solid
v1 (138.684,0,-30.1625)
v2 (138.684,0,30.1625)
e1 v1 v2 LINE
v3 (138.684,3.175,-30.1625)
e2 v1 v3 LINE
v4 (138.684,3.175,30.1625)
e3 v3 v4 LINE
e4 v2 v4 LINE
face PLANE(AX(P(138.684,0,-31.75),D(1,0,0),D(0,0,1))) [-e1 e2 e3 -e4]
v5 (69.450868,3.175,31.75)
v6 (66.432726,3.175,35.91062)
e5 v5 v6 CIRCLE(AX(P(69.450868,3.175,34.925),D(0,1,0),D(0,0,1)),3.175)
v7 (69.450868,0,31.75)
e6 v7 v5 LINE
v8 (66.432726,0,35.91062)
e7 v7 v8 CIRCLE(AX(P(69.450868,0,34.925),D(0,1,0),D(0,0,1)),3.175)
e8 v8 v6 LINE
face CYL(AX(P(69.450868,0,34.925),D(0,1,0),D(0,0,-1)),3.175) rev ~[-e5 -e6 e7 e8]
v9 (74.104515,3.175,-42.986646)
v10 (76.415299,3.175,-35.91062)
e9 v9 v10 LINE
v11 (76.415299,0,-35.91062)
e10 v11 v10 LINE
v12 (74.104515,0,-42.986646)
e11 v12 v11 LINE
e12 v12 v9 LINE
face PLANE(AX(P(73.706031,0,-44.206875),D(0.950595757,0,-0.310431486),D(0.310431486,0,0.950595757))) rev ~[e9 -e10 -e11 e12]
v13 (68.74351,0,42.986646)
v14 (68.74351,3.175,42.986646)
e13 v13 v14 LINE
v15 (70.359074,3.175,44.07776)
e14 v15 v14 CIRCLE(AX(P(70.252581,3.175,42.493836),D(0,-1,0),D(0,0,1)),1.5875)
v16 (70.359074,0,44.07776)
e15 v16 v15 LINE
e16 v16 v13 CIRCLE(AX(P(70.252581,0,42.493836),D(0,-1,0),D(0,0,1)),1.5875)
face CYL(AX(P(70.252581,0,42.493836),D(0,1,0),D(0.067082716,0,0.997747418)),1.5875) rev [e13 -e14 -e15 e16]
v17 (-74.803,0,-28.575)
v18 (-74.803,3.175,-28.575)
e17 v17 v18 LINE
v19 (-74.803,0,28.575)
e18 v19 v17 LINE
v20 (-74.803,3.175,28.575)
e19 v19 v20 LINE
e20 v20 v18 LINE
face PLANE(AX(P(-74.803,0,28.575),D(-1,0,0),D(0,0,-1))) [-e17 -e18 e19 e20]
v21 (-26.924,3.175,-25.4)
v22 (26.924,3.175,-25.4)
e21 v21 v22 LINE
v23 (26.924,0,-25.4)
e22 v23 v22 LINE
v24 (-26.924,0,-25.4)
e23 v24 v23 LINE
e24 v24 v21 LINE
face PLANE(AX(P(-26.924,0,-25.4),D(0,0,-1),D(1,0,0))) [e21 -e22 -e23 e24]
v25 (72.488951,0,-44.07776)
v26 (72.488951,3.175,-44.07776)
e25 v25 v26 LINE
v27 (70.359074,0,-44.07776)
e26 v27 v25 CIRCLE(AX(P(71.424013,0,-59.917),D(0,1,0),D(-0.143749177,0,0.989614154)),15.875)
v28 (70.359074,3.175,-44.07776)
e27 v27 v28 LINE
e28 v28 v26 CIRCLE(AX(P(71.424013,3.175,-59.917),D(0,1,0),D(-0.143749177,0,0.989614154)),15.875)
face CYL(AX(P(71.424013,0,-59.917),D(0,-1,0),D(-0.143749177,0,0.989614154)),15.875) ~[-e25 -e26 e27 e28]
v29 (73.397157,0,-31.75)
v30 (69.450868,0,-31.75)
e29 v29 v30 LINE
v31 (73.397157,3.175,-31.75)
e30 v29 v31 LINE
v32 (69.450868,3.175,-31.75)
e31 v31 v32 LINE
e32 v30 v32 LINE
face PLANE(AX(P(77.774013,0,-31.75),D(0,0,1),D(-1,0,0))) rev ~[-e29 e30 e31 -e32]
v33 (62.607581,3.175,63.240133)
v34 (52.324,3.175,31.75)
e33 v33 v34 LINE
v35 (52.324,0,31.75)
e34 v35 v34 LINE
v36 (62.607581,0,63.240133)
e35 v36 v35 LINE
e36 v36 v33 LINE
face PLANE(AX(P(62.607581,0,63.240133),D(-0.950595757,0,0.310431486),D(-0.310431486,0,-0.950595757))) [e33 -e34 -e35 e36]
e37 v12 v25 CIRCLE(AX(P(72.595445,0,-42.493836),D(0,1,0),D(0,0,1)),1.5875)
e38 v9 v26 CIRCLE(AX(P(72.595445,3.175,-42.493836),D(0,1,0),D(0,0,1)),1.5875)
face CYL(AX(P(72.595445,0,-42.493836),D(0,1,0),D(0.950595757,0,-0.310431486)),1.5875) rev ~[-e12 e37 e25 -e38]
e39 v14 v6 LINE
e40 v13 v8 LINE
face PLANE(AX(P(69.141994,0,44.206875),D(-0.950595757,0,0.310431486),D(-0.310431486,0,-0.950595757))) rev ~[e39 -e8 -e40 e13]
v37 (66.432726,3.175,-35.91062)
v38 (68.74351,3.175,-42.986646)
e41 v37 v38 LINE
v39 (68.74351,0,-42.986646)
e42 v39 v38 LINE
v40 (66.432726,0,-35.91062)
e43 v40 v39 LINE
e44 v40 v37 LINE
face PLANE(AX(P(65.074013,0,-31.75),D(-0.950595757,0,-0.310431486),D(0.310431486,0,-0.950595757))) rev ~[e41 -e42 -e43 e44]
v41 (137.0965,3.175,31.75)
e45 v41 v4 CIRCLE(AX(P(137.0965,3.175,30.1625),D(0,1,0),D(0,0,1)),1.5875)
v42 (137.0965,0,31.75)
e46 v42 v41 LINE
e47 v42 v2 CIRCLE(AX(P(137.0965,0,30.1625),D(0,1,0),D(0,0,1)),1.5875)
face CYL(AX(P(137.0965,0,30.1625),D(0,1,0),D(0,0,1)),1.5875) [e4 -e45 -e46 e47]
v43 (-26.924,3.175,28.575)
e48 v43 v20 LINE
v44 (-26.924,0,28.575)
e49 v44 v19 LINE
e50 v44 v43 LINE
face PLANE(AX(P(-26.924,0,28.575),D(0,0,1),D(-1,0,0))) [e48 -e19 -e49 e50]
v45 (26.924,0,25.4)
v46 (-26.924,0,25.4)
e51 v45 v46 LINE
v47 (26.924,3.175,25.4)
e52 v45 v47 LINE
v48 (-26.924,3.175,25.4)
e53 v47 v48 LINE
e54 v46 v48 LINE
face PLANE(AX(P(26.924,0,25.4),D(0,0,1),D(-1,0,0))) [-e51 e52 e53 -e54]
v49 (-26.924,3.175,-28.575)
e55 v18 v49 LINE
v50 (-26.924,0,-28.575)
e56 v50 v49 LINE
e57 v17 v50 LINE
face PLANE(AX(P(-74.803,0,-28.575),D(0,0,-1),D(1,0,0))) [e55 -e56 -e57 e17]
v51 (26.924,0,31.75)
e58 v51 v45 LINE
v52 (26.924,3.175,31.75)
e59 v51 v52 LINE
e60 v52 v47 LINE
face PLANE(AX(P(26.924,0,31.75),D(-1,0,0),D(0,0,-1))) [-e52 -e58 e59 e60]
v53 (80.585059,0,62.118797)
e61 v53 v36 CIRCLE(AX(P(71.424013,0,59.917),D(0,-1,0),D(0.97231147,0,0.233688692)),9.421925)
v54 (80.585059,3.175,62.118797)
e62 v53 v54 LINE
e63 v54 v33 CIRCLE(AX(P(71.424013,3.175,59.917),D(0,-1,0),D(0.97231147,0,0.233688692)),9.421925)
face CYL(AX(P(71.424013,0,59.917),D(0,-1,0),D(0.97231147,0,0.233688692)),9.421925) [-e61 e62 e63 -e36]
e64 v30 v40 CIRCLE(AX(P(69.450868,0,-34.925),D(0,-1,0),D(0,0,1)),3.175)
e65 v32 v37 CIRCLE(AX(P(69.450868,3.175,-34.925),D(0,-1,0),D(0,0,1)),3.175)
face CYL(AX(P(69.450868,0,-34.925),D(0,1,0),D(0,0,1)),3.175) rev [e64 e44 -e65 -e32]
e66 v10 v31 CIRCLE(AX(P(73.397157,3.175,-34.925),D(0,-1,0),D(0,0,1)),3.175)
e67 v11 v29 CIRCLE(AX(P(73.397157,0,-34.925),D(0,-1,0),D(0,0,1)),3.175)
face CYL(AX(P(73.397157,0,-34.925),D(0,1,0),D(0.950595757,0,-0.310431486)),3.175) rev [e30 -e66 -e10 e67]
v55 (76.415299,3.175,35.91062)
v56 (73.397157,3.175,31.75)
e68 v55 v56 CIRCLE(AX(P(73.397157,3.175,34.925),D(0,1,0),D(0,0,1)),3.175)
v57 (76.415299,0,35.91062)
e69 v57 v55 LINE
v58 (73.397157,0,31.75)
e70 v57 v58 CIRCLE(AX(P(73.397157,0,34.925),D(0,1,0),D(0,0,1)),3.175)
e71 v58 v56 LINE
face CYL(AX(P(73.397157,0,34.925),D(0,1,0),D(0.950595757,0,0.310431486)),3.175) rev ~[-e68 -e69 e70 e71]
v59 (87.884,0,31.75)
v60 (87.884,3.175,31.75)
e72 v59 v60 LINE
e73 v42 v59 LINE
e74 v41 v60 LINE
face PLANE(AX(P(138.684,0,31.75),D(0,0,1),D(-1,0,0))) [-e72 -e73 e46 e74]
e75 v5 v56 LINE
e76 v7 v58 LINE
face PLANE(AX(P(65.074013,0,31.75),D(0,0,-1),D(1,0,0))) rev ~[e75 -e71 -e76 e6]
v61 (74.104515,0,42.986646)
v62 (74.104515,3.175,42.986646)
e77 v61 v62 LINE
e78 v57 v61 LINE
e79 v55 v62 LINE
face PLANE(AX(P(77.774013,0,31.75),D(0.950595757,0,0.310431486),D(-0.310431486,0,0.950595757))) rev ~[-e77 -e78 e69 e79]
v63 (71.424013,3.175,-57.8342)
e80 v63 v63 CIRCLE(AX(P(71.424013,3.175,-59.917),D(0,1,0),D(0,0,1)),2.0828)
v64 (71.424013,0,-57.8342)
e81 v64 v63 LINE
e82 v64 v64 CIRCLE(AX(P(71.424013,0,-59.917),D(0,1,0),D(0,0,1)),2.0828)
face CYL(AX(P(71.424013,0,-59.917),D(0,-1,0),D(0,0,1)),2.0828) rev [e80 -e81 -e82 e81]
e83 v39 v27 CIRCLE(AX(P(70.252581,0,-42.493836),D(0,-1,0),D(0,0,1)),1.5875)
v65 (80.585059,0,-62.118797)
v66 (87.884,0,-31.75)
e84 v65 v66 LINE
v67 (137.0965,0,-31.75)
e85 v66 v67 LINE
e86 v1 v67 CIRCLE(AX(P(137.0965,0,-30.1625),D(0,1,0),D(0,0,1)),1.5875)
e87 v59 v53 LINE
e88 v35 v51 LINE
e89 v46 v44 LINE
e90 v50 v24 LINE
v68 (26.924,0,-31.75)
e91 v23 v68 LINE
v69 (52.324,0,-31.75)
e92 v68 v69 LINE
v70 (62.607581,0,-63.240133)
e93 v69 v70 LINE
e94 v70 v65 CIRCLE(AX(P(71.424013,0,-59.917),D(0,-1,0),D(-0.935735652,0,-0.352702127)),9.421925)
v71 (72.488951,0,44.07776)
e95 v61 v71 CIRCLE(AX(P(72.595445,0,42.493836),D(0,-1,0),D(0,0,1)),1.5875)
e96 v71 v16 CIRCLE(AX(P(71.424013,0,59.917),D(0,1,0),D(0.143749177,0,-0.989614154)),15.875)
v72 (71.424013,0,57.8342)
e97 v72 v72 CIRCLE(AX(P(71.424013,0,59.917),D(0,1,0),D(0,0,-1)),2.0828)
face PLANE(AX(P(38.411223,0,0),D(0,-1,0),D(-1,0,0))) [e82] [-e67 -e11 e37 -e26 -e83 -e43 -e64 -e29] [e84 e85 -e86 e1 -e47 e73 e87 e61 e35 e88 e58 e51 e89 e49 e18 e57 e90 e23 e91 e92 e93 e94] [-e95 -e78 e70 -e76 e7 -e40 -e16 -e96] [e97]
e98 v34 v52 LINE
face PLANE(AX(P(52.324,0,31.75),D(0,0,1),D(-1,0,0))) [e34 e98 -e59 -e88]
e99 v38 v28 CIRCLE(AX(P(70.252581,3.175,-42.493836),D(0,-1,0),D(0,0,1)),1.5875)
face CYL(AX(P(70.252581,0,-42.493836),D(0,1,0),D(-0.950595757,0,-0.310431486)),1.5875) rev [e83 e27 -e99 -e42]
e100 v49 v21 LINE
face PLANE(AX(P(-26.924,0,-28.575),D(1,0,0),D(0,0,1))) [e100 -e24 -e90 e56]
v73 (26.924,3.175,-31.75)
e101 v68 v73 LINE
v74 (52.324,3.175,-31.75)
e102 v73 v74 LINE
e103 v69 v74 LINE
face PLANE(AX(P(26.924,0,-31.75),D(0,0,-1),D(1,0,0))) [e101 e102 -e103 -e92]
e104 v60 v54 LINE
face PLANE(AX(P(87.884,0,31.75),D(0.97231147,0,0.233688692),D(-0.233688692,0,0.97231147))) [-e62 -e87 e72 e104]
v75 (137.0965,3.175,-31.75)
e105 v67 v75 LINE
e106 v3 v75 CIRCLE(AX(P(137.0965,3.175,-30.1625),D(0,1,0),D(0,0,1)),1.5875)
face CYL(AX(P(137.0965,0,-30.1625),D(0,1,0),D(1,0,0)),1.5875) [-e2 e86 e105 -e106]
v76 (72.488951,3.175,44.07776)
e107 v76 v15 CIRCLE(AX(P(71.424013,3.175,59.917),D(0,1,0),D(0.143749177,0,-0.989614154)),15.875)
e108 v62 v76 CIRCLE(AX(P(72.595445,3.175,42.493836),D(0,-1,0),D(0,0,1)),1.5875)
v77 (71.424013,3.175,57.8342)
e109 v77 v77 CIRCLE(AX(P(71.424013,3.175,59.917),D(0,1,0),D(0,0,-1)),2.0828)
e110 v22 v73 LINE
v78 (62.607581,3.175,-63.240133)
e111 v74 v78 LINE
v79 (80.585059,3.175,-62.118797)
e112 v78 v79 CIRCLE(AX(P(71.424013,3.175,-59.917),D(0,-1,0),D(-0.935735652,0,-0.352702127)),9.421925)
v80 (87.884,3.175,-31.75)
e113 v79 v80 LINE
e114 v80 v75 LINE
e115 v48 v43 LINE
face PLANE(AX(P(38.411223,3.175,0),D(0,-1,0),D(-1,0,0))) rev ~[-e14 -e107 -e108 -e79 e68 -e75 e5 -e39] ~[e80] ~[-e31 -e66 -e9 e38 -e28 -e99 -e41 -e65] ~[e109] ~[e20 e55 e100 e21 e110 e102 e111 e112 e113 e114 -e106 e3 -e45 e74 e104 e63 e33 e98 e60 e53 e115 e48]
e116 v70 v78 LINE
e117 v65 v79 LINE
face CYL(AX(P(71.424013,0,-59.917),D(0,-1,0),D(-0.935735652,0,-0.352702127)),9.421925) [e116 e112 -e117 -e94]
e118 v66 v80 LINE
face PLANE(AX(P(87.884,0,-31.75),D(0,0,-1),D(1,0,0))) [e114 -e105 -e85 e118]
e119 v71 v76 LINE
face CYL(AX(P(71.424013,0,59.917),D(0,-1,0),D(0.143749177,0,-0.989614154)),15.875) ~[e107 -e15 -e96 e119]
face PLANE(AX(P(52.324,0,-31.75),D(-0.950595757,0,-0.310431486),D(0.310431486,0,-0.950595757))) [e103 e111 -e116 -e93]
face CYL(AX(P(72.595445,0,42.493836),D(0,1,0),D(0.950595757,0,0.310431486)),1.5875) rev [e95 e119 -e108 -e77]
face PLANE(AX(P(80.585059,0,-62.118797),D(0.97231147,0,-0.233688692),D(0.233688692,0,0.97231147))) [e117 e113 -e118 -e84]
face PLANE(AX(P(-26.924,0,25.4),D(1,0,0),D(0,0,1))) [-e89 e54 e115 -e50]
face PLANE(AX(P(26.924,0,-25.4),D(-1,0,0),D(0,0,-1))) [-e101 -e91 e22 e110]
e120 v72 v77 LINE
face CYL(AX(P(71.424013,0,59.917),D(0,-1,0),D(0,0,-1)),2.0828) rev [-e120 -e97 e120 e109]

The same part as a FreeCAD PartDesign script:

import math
import FreeCAD as App
import Part
import Sketcher
from FreeCAD import Vector
Q = App.Units.Quantity


def edges_at(feature, points):
    """Names of the edges that pass closest to the given points."""
    edges = feature.Shape.Edges
    near = lambda p: min(range(len(edges)), key=lambda i: edges[i].distToShape(Part.Vertex(*p))[0])
    return sorted({f"Edge{near(p) + 1}" for p in points})

doc = App.newDocument("Part")
body = doc.addObject("PartDesign::Body", "Body")

# Sketch on XZ plane
sketch1 = body.newObject("Sketcher::SketchObject", "Sketch")
sketch1.AttachmentSupport = (doc.getObject("XZ_Plane"), [""])
sketch1.MapMode = "FlatFace"
sketch1.addGeometry([
    Part.LineSegment(Vector(-26.9, 25.4, 0), Vector(26.9, 25.4, 0)),  # 0
    Part.LineSegment(Vector(26.9, 25.4, 0), Vector(26.9, 31.8, 0)),  # 1
    Part.LineSegment(Vector(26.9, 31.8, 0), Vector(52.3, 31.8, 0)),  # 2
    Part.LineSegment(Vector(52.3, 31.8, 0), Vector(62.6, 63.2, 0)),  # 3
    Part.ArcOfCircle(Part.Circle(Vector(71.4, 59.9, 0), Vector(0, 0, 1), 9.4), math.radians(14), math.radians(159)),  # 4
    Part.LineSegment(Vector(80.6, 62.1, 0), Vector(87.9, 31.8, 0)),  # 5
    Part.LineSegment(Vector(87.9, 31.8, 0), Vector(138.7, 31.8, 0)),  # 6
    Part.LineSegment(Vector(138.7, 31.8, 0), Vector(138.7, -31.8, 0)),  # 7
    Part.LineSegment(Vector(138.7, -31.8, 0), Vector(87.9, -31.8, 0)),  # 8
    Part.LineSegment(Vector(87.9, -31.8, 0), Vector(80.6, -62.1, 0)),  # 9
    Part.ArcOfCircle(Part.Circle(Vector(71.4, -59.9, 0), Vector(0, 0, 1), 9.4), math.radians(-159), math.radians(-14)),  # 10
    Part.LineSegment(Vector(62.6, -63.2, 0), Vector(52.3, -31.8, 0)),  # 11
    Part.LineSegment(Vector(52.3, -31.8, 0), Vector(26.9, -31.8, 0)),  # 12
    Part.LineSegment(Vector(26.9, -31.8, 0), Vector(26.9, -25.4, 0)),  # 13
    Part.LineSegment(Vector(26.9, -25.4, 0), Vector(-26.9, -25.4, 0)),  # 14
    Part.LineSegment(Vector(-26.9, -25.4, 0), Vector(-26.9, -28.6, 0)),  # 15
    Part.LineSegment(Vector(-26.9, -28.6, 0), Vector(-74.8, -28.6, 0)),  # 16
    Part.LineSegment(Vector(-74.8, -28.6, 0), Vector(-74.8, 28.6, 0)),  # 17
    Part.LineSegment(Vector(-74.8, 28.6, 0), Vector(-26.9, 28.6, 0)),  # 18
    Part.LineSegment(Vector(-26.9, 28.6, 0), Vector(-26.9, 25.4, 0)),  # 19
    Part.Circle(Vector(71.4, 59.9, 0), Vector(0, 0, 1), 2.1),  # 20
    Part.LineSegment(Vector(77.8, 31.8, 0), Vector(73.7, 44.2, 0)),  # 21
    Part.ArcOfCircle(Part.Circle(Vector(71.4, 59.9, 0), Vector(0, 0, 1), 15.9), math.radians(-98.26), math.radians(-81.74)),  # 22
    Part.LineSegment(Vector(69.1, 44.2, 0), Vector(65.1, 31.8, 0)),  # 23
    Part.LineSegment(Vector(65.1, 31.8, 0), Vector(77.8, 31.8, 0)),  # 24
    Part.LineSegment(Vector(77.8, -31.8, 0), Vector(65.1, -31.8, 0)),  # 25
    Part.LineSegment(Vector(65.1, -31.8, 0), Vector(69.1, -44.2, 0)),  # 26
    Part.ArcOfCircle(Part.Circle(Vector(71.4, -59.9, 0), Vector(0, 0, 1), 15.9), math.radians(81.74), math.radians(98.26)),  # 27
    Part.LineSegment(Vector(73.7, -44.2, 0), Vector(77.8, -31.8, 0)),  # 28
    Part.Circle(Vector(71.4, -59.9, 0), Vector(0, 0, 1), 2.1),  # 29
], False)
sketch1.addConstraint([
    Sketcher.Constraint("Coincident", 0, 2, 1, 1),
    Sketcher.Constraint("Coincident", 1, 2, 2, 1),
    Sketcher.Constraint("Coincident", 2, 2, 3, 1),
    Sketcher.Constraint("Coincident", 3, 2, 4, 2),
    Sketcher.Constraint("Tangent", 4, 1, 5, 1),
    Sketcher.Constraint("Coincident", 5, 2, 6, 1),
    Sketcher.Constraint("Coincident", 6, 2, 7, 1),
    Sketcher.Constraint("Coincident", 7, 2, 8, 1),
    Sketcher.Constraint("Coincident", 8, 2, 9, 1),
    Sketcher.Constraint("Tangent", 9, 2, 10, 2),
    Sketcher.Constraint("Coincident", 10, 1, 11, 1),
    Sketcher.Constraint("Coincident", 11, 2, 12, 1),
    Sketcher.Constraint("Coincident", 12, 2, 13, 1),
    Sketcher.Constraint("Coincident", 13, 2, 14, 1),
    Sketcher.Constraint("Coincident", 14, 2, 15, 1),
    Sketcher.Constraint("Coincident", 15, 2, 16, 1),
    Sketcher.Constraint("Coincident", 16, 2, 17, 1),
    Sketcher.Constraint("Coincident", 17, 2, 18, 1),
    Sketcher.Constraint("Coincident", 18, 2, 19, 1),
    Sketcher.Constraint("Coincident", 19, 2, 0, 1),
    Sketcher.Constraint("Coincident", 21, 2, 22, 2),
    Sketcher.Constraint("Coincident", 22, 1, 23, 1),
    Sketcher.Constraint("Coincident", 23, 2, 24, 1),
    Sketcher.Constraint("Coincident", 24, 2, 21, 1),
    Sketcher.Constraint("Coincident", 25, 2, 26, 1),
    Sketcher.Constraint("Coincident", 26, 2, 27, 2),
    Sketcher.Constraint("Coincident", 27, 1, 28, 1),
    Sketcher.Constraint("Coincident", 28, 2, 25, 1),
    Sketcher.Constraint("Horizontal", 0),
    Sketcher.Constraint("Vertical", 1),
    Sketcher.Constraint("Horizontal", 2),
    Sketcher.Constraint("Horizontal", 6),
    Sketcher.Constraint("Vertical", 7),
    Sketcher.Constraint("Horizontal", 8),
    Sketcher.Constraint("Horizontal", 12),
    Sketcher.Constraint("Vertical", 13),
    Sketcher.Constraint("Horizontal", 14),
    Sketcher.Constraint("Vertical", 15),
    Sketcher.Constraint("Horizontal", 16),
    Sketcher.Constraint("Vertical", 17),
    Sketcher.Constraint("Horizontal", 18),
    Sketcher.Constraint("Vertical", 19),
    Sketcher.Constraint("Horizontal", 24),
    Sketcher.Constraint("Horizontal", 25),
    Sketcher.Constraint("Coincident", 20, 3, 4, 3),
    Sketcher.Constraint("Coincident", 22, 3, 4, 3),
    Sketcher.Constraint("Coincident", 27, 3, 10, 3),
    Sketcher.Constraint("Coincident", 29, 3, 10, 3),
    Sketcher.Constraint("Equal", 4, 10),
    Sketcher.Constraint("Equal", 22, 27),
    Sketcher.Constraint("Equal", 20, 29),
    Sketcher.Constraint("Symmetric", 0, 2, 14, 2, -1, 1),
    Sketcher.Constraint("Symmetric", 4, 3, 10, 3, -1),
    Sketcher.Constraint("Symmetric", 5, 2, 8, 2, -1),
    Sketcher.Constraint("Symmetric", 2, 2, 11, 2, -1),
    Sketcher.Constraint("Symmetric", 15, 2, 18, 2, -1),
    Sketcher.Constraint("Symmetric", 23, 2, 25, 2, -1),
    Sketcher.Constraint("Parallel", 11, 21),
    Sketcher.Constraint("Parallel", 3, 23),
    Sketcher.Constraint("Parallel", 21, 26),
    Sketcher.Constraint("Parallel", 23, 28),
    Sketcher.Constraint("Horizontal", 2, 2, 5, 2),
    Sketcher.Constraint("Horizontal", 21, 2, 22, 1),
    Sketcher.Constraint("Horizontal", 6, 2, 23, 2),
    Sketcher.Constraint("Horizontal", 26, 2, 27, 1),
    Sketcher.Constraint("Vertical", 3, 2, 10, 1),
    Sketcher.Constraint("Vertical", 1, 2, 12, 2),
    Sketcher.Constraint("DistanceX", 2, 1, 2, 2, Q("1 in")),
    Sketcher.Constraint("DistanceX", 6, 1, 6, 2, Q("2 in")),
    Sketcher.Constraint("Diameter", 20, Q("0.164 in")),
    Sketcher.Constraint("DistanceX", 24, 1, 24, 2, Q("0.5 in")),
    Sketcher.Constraint("DistanceY", 7, 2, 7, 1, Q("2.5 in")),
    Sketcher.Constraint("DistanceY", -1, 1, 0, 2, Q("1 in")),
    Sketcher.Constraint("Radius", 22, Q("0.625 in")),
    Sketcher.Constraint("DistanceX", 0, 1, 0, 2, Q("2.12 in")),
    Sketcher.Constraint("DistanceY", 17, 1, 17, 2, Q("2.25 in")),
    Sketcher.Constraint("DistanceX", 2, 2, 5, 2, Q("1.4 in")),
    Sketcher.Constraint("DistanceX", 16, 2, 16, 1, Q("1.885 in")),
    Sketcher.Constraint("Radius", 4, Q("9.421925 mm")),
    Sketcher.Constraint("DistanceY", -1, 1, 4, 3, Q("59.917 mm")),
    Sketcher.Constraint("Distance", 5, Q("31.23361 mm")),
    Sketcher.Constraint("DistanceX", -1, 1, 3, 2, Q("62.607581 mm")),
])
pad1 = body.newObject("PartDesign::Pad", "Pad")
pad1.Profile = sketch1
pad1.Length = Q("0.125 in")
pad1.Reversed = True
doc.recompute()

fillet = body.newObject("PartDesign::Fillet", "Fillet")
fillet.Base = (pad1, edges_at(pad1, [
    (69.142, 1.587, 44.207),
    (73.706, 1.587, 44.207),
    (69.142, 1.587, -44.207),
    (73.706, 1.587, -44.207),
]))
fillet.Radius = Q("0.0625 in")
doc.recompute()

fillet2 = body.newObject("PartDesign::Fillet", "Fillet001")
fillet2.Base = (fillet, edges_at(fillet, [
    (77.774, 1.587, 31.75),
    (65.074, 1.587, 31.75),
    (65.074, 1.587, -31.75),
    (77.774, 1.587, -31.75),
]))
fillet2.Radius = Q("0.125 in")
doc.recompute()

fillet3 = body.newObject("PartDesign::Fillet", "Fillet002")
fillet3.Base = (fillet2, edges_at(fillet2, [(138.684, 1.587, -31.75), (138.684, 1.587, 31.75)]))
fillet3.Radius = Q("0.0625 in")

doc.recompute()
